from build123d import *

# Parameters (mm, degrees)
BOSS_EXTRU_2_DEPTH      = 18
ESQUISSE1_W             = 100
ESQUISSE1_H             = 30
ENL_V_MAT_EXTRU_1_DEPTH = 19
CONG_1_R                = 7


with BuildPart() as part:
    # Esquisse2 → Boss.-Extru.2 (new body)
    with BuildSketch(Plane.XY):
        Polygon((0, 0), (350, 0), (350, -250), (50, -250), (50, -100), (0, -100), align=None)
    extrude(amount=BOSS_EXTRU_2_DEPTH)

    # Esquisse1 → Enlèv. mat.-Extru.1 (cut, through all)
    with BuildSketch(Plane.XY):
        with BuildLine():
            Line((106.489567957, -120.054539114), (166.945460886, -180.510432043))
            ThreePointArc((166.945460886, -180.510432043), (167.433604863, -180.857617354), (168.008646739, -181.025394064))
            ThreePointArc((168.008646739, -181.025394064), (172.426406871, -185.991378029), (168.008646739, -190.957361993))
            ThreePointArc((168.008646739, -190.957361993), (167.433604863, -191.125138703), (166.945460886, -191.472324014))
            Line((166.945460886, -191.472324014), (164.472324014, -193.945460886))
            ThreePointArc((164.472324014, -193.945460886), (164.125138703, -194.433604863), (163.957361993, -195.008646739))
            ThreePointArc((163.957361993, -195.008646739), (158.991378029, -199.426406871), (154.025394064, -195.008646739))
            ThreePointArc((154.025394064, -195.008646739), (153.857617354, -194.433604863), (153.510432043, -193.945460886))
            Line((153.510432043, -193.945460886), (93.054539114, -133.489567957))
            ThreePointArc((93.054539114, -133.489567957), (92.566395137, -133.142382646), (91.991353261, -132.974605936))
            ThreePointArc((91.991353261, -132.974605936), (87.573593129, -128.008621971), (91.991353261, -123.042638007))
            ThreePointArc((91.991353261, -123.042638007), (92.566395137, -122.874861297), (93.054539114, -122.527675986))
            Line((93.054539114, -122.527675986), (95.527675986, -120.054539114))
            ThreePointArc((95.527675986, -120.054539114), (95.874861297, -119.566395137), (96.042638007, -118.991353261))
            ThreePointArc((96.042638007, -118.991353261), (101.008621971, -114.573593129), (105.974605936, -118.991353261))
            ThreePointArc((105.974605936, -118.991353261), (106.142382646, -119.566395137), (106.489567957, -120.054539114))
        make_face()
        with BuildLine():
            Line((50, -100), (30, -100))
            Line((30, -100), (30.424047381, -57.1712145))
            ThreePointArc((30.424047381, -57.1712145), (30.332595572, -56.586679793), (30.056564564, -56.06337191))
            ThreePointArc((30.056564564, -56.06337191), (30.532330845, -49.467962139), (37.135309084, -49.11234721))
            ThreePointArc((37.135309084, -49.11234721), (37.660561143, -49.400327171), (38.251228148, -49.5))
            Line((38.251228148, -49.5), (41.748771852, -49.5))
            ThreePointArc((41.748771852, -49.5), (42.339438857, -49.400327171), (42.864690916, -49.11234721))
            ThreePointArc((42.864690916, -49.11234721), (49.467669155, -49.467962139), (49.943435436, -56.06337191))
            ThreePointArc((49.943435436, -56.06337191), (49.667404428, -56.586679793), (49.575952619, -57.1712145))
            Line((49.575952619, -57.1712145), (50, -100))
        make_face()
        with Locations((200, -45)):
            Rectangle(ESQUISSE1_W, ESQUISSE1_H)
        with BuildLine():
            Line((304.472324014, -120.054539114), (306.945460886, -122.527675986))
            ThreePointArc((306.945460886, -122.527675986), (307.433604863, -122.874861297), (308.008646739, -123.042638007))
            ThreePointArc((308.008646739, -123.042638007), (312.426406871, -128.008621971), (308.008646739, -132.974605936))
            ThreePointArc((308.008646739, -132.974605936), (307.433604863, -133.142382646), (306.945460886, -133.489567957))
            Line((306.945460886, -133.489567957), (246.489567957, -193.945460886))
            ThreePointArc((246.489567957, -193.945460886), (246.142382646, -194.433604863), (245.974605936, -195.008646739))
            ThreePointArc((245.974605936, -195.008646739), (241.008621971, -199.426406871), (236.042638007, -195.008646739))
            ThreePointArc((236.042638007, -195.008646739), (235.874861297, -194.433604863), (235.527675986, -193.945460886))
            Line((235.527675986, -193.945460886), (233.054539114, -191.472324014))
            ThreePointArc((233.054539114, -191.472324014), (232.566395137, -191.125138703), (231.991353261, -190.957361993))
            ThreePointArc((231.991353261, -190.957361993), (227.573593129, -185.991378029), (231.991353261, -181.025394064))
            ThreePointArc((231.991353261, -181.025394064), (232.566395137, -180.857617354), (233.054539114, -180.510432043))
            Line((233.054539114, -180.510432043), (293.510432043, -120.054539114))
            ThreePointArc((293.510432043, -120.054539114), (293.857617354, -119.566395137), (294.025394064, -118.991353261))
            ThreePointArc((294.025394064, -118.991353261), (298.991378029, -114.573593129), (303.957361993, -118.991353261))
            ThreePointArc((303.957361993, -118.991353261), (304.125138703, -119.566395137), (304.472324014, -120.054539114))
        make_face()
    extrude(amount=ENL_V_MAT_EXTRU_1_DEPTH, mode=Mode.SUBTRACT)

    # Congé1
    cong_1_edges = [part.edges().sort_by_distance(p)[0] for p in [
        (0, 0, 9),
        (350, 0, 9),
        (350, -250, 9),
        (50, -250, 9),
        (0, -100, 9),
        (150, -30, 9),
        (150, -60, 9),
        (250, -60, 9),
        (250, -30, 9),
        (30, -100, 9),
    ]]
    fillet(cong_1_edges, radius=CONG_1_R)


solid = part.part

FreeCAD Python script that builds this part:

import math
import FreeCAD as App
import Part
import Sketcher

V = App.Vector
Q = App.Units.Quantity


def edges_at(feature, points):
    """Names of the edges that pass closest to the given points."""
    edges = feature.Shape.Edges
    near = lambda p: min(range(len(edges)), key=lambda i: edges[i].distToShape(Part.Vertex(*p))[0])
    return sorted({f"Edge{near(p) + 1}" for p in points})

doc = App.newDocument("Part")
body = doc.addObject("PartDesign::Body", "Body")

sketch1 = body.newObject("Sketcher::SketchObject", "Sketch")
sketch1.AttachmentSupport = (doc.getObject("XY_Plane"), [""])
sketch1.MapMode = "FlatFace"
sketch1.addGeometry([
    Part.LineSegment(V(350, 0, 0), V(0, 0, 0)),
    Part.LineSegment(V(0, 0, 0), V(0, -100, 0)),
    Part.LineSegment(V(0, -100, 0), V(50, -100, 0)),
    Part.LineSegment(V(50, -100, 0), V(50, -250, 0)),
    Part.LineSegment(V(50, -250, 0), V(350, -250, 0)),
    Part.LineSegment(V(350, -250, 0), V(350, 0, 0)),
], False)
sketch1.addConstraint([
    Sketcher.Constraint("Coincident", 0, 2, 1, 1),
    Sketcher.Constraint("Coincident", 1, 2, 2, 1),
    Sketcher.Constraint("Coincident", 2, 2, 3, 1),
    Sketcher.Constraint("Coincident", 3, 2, 4, 1),
    Sketcher.Constraint("Coincident", 4, 2, 5, 1),
    Sketcher.Constraint("Coincident", 5, 2, 0, 1),
    Sketcher.Constraint("Horizontal", 0),
    Sketcher.Constraint("Vertical", 1),
    Sketcher.Constraint("Horizontal", 2),
    Sketcher.Constraint("Vertical", 3),
    Sketcher.Constraint("Horizontal", 4),
    Sketcher.Constraint("Vertical", 5),
    Sketcher.Constraint("Coincident", 0, 2, -1, 1),
    Sketcher.Constraint("DistanceX", 0, 2, 0, 1, Q("350 mm")),
    Sketcher.Constraint("DistanceX", 2, 1, 2, 2, Q("50 mm")),
    Sketcher.Constraint("DistanceY", 1, 2, 1, 1, Q("100 mm")),
    Sketcher.Constraint("DistanceY", 3, 2, 3, 1, Q("150 mm")),
])
pad1 = body.newObject("PartDesign::Pad", "Pad")
pad1.Profile = sketch1
pad1.Length = 18

sketch2 = body.newObject("Sketcher::SketchObject", "Sketch001")
sketch2.AttachmentSupport = (doc.getObject("XY_Plane"), [""])
sketch2.MapMode = "FlatFace"
sketch2.addGeometry([
    Part.LineSegment(V(166.9, -180.5, 0), V(106.5, -120.1, 0)),
    Part.ArcOfCircle(Part.Circle(V(107.8, -118.8, 0), V(0, 0, 1), 1.8), math.radians(-173), math.radians(-135)),
    Part.ArcOfCircle(Part.Circle(V(101, -119.6, 0), V(0, 0, 1), 5), math.radians(7), math.radians(173)),
    Part.ArcOfCircle(Part.Circle(V(94.3, -118.8, 0), V(0, 0, 1), 1.8), math.radians(-45), math.radians(-7)),
    Part.LineSegment(V(95.5, -120.1, 0), V(93.1, -122.5, 0)),
    Part.ArcOfCircle(Part.Circle(V(91.8, -121.3, 0), V(0, 0, 1), 1.8), math.radians(-83), math.radians(-45)),
    Part.ArcOfCircle(Part.Circle(V(92.6, -128, 0), V(0, 0, 1), 5), math.radians(97), math.radians(263)),
    Part.ArcOfCircle(Part.Circle(V(91.8, -134.8, 0), V(0, 0, 1), 1.8), math.radians(45), math.radians(83)),
    Part.LineSegment(V(93.1, -133.5, 0), V(153.5, -193.9, 0)),
    Part.ArcOfCircle(Part.Circle(V(152.2, -195.2, 0), V(0, 0, 1), 1.8), math.radians(7), math.radians(45)),
    Part.ArcOfCircle(Part.Circle(V(159, -194.4, 0), V(0, 0, 1), 5), math.radians(-173), math.radians(-7)),
    Part.ArcOfCircle(Part.Circle(V(165.7, -195.2, 0), V(0, 0, 1), 1.8), math.radians(135), math.radians(173)),
    Part.LineSegment(V(164.5, -193.9, 0), V(166.9, -191.5, 0)),
    Part.ArcOfCircle(Part.Circle(V(168.2, -192.7, 0), V(0, 0, 1), 1.8), math.radians(97), math.radians(135)),
    Part.ArcOfCircle(Part.Circle(V(167.4, -186, 0), V(0, 0, 1), 5), math.radians(-83), math.radians(83)),
    Part.ArcOfCircle(Part.Circle(V(168.2, -179.2, 0), V(0, 0, 1), 1.8), math.radians(-135), math.radians(-97)),
    Part.LineSegment(V(30, -100, 0), V(50, -100, 0)),
    Part.LineSegment(V(50, -100, 0), V(49.6, -57.2, 0)),
    Part.ArcOfCircle(Part.Circle(V(51.4, -57.2, 0), V(0, 0, 1), 1.8), math.radians(143), math.radians(181)),
    Part.ArcOfCircle(Part.Circle(V(46, -53, 0), V(0, 0, 1), 5), math.radians(-37), math.radians(128)),
    Part.ArcOfCircle(Part.Circle(V(41.7, -47.7, 0), V(0, 0, 1), 1.8), math.radians(-90), math.radians(-52)),
    Part.LineSegment(V(41.7, -49.5, 0), V(38.3, -49.5, 0)),
    Part.ArcOfCircle(Part.Circle(V(38.3, -47.7, 0), V(0, 0, 1), 1.8), math.radians(-128), math.radians(-90)),
    Part.ArcOfCircle(Part.Circle(V(34, -53, 0), V(0, 0, 1), 5), math.radians(52), math.radians(217)),
    Part.ArcOfCircle(Part.Circle(V(28.6, -57.2, 0), V(0, 0, 1), 1.8), math.radians(-1), math.radians(37)),
    Part.LineSegment(V(30.4, -57.2, 0), V(30, -100, 0)),
    Part.LineSegment(V(150, -30, 0), V(150, -60, 0)),
    Part.LineSegment(V(150, -60, 0), V(250, -60, 0)),
    Part.LineSegment(V(250, -60, 0), V(250, -30, 0)),
    Part.LineSegment(V(250, -30, 0), V(150, -30, 0)),
    Part.LineSegment(V(306.9, -122.5, 0), V(304.5, -120.1, 0)),
    Part.ArcOfCircle(Part.Circle(V(305.7, -118.8, 0), V(0, 0, 1), 1.8), math.radians(-173), math.radians(-135)),
    Part.ArcOfCircle(Part.Circle(V(299, -119.6, 0), V(0, 0, 1), 5), math.radians(7), math.radians(173)),
    Part.ArcOfCircle(Part.Circle(V(292.2, -118.8, 0), V(0, 0, 1), 1.8), math.radians(-45), math.radians(-7)),
    Part.LineSegment(V(293.5, -120.1, 0), V(233.1, -180.5, 0)),
    Part.ArcOfCircle(Part.Circle(V(231.8, -179.2, 0), V(0, 0, 1), 1.8), math.radians(-83), math.radians(-45)),
    Part.ArcOfCircle(Part.Circle(V(232.6, -186, 0), V(0, 0, 1), 5), math.radians(97), math.radians(263)),
    Part.ArcOfCircle(Part.Circle(V(231.8, -192.7, 0), V(0, 0, 1), 1.8), math.radians(45), math.radians(83)),
    Part.LineSegment(V(233.1, -191.5, 0), V(235.5, -193.9, 0)),
    Part.ArcOfCircle(Part.Circle(V(234.3, -195.2, 0), V(0, 0, 1), 1.8), math.radians(7), math.radians(45)),
    Part.ArcOfCircle(Part.Circle(V(241, -194.4, 0), V(0, 0, 1), 5), math.radians(-173), math.radians(-7)),
    Part.ArcOfCircle(Part.Circle(V(247.8, -195.2, 0), V(0, 0, 1), 1.8), math.radians(135), math.radians(173)),
    Part.LineSegment(V(246.5, -193.9, 0), V(306.9, -133.5, 0)),
    Part.ArcOfCircle(Part.Circle(V(308.2, -134.8, 0), V(0, 0, 1), 1.8), math.radians(97), math.radians(135)),
    Part.ArcOfCircle(Part.Circle(V(307.4, -128, 0), V(0, 0, 1), 5), math.radians(-83), math.radians(83)),
    Part.ArcOfCircle(Part.Circle(V(308.2, -121.3, 0), V(0, 0, 1), 1.8), math.radians(-135), math.radians(-97)),
], False)
sketch2.addConstraint([
    Sketcher.Constraint("Tangent", 0, 2, 1, 2),
    Sketcher.Constraint("Tangent", 1, 1, 2, 1),
    Sketcher.Constraint("Tangent", 2, 2, 3, 2),
    Sketcher.Constraint("Tangent", 3, 1, 4, 1),
    Sketcher.Constraint("Tangent", 4, 2, 5, 2),
    Sketcher.Constraint("Tangent", 5, 1, 6, 1),
    Sketcher.Constraint("Tangent", 6, 2, 7, 2),
    Sketcher.Constraint("Tangent", 7, 1, 8, 1),
    Sketcher.Constraint("Tangent", 8, 2, 9, 2),
    Sketcher.Constraint("Tangent", 9, 1, 10, 1),
    Sketcher.Constraint("Tangent", 10, 2, 11, 2),
    Sketcher.Constraint("Tangent", 11, 1, 12, 1),
    Sketcher.Constraint("Tangent", 12, 2, 13, 2),
    Sketcher.Constraint("Tangent", 13, 1, 14, 1),
    Sketcher.Constraint("Tangent", 14, 2, 15, 2),
    Sketcher.Constraint("Tangent", 15, 1, 0, 1),
    Sketcher.Constraint("Coincident", 16, 2, 17, 1),
    Sketcher.Constraint("Tangent", 17, 2, 18, 2),
    Sketcher.Constraint("Tangent", 18, 1, 19, 1),
    Sketcher.Constraint("Tangent", 19, 2, 20, 2),
    Sketcher.Constraint("Tangent", 20, 1, 21, 1),
    Sketcher.Constraint("Tangent", 21, 2, 22, 2),
    Sketcher.Constraint("Tangent", 22, 1, 23, 1),
    Sketcher.Constraint("Tangent", 23, 2, 24, 2),
    Sketcher.Constraint("Tangent", 24, 1, 25, 1),
    Sketcher.Constraint("Coincident", 25, 2, 16, 1),
    Sketcher.Constraint("Coincident", 26, 2, 27, 1),
    Sketcher.Constraint("Coincident", 27, 2, 28, 1),
    Sketcher.Constraint("Coincident", 28, 2, 29, 1),
    Sketcher.Constraint("Coincident", 29, 2, 26, 1),
    Sketcher.Constraint("Tangent", 30, 2, 31, 2),
    Sketcher.Constraint("Tangent", 31, 1, 32, 1),
    Sketcher.Constraint("Tangent", 32, 2, 33, 2),
    Sketcher.Constraint("Tangent", 33, 1, 34, 1),
    Sketcher.Constraint("Tangent", 34, 2, 35, 2),
    Sketcher.Constraint("Tangent", 35, 1, 36, 1),
    Sketcher.Constraint("Tangent", 36, 2, 37, 2),
    Sketcher.Constraint("Tangent", 37, 1, 38, 1),
    Sketcher.Constraint("Tangent", 38, 2, 39, 2),
    Sketcher.Constraint("Tangent", 39, 1, 40, 1),
    Sketcher.Constraint("Tangent", 40, 2, 41, 2),
    Sketcher.Constraint("Tangent", 41, 1, 42, 1),
    Sketcher.Constraint("Tangent", 42, 2, 43, 2),
    Sketcher.Constraint("Tangent", 43, 1, 44, 1),
    Sketcher.Constraint("Tangent", 44, 2, 45, 2),
    Sketcher.Constraint("Tangent", 45, 1, 30, 1),
    Sketcher.Constraint("Horizontal", 16),
    Sketcher.Constraint("Horizontal", 21),
    Sketcher.Constraint("Vertical", 26),
    Sketcher.Constraint("Horizontal", 27),
    Sketcher.Constraint("Vertical", 28),
    Sketcher.Constraint("Horizontal", 29),
    Sketcher.Constraint("Equal", 1, 3),
    Sketcher.Constraint("Equal", 3, 5),
    Sketcher.Constraint("Equal", 2, 6),
    Sketcher.Constraint("Equal", 5, 7),
    Sketcher.Constraint("Equal", 7, 9),
    Sketcher.Constraint("Equal", 6, 10),
    Sketcher.Constraint("Equal", 9, 11),
    Sketcher.Constraint("Equal", 11, 13),
    Sketcher.Constraint("Equal", 10, 14),
    Sketcher.Constraint("Equal", 13, 15),
    Sketcher.Constraint("Equal", 15, 18),
    Sketcher.Constraint("Equal", 14, 19),
    Sketcher.Constraint("Equal", 18, 20),
    Sketcher.Constraint("Equal", 20, 22),
    Sketcher.Constraint("Equal", 19, 23),
    Sketcher.Constraint("Equal", 22, 24),
    Sketcher.Constraint("Equal", 24, 31),
    Sketcher.Constraint("Equal", 23, 32),
    Sketcher.Constraint("Equal", 31, 33),
    Sketcher.Constraint("Equal", 33, 35),
    Sketcher.Constraint("Equal", 32, 36),
    Sketcher.Constraint("Equal", 35, 37),
    Sketcher.Constraint("Equal", 37, 39),
    Sketcher.Constraint("Equal", 36, 40),
    Sketcher.Constraint("Equal", 39, 41),
    Sketcher.Constraint("Equal", 41, 43),
    Sketcher.Constraint("Equal", 40, 44),
    Sketcher.Constraint("Equal", 43, 45),
    Sketcher.Constraint("Perpendicular", 0, 4),
    Sketcher.Constraint("Perpendicular", 4, 8),
    Sketcher.Constraint("Perpendicular", 8, 12),
    Sketcher.Constraint("Perpendicular", 12, 30),
    Sketcher.Constraint("Perpendicular", 30, 34),
    Sketcher.Constraint("Perpendicular", 34, 38),
    Sketcher.Constraint("Perpendicular", 38, 42),
    Sketcher.Constraint("Horizontal", 1, 3, 3, 3),
    Sketcher.Constraint("Horizontal", 9, 3, 11, 3),
    Sketcher.Constraint("Horizontal", 19, 3, 23, 3),
    Sketcher.Constraint("Horizontal", 18, 3, 24, 3),
    Sketcher.Constraint("Horizontal", 3, 3, 31, 3),
    Sketcher.Constraint("Horizontal", 2, 3, 32, 3),
    Sketcher.Constraint("Horizontal", 31, 3, 33, 3),
    Sketcher.Constraint("Horizontal", 15, 3, 35, 3),
    Sketcher.Constraint("Horizontal", 14, 3, 36, 3),
    Sketcher.Constraint("Horizontal", 13, 3, 37, 3),
    Sketcher.Constraint("Horizontal", 11, 3, 39, 3),
    Sketcher.Constraint("Horizontal", 10, 3, 40, 3),
    Sketcher.Constraint("Horizontal", 39, 3, 41, 3),
    Sketcher.Constraint("Horizontal", 7, 3, 43, 3),
    Sketcher.Constraint("Horizontal", 6, 3, 44, 3),
    Sketcher.Constraint("Horizontal", 0, 2, 3, 1),
    Sketcher.Constraint("Horizontal", 17, 2, 24, 1),
    Sketcher.Constraint("Vertical", 5, 3, 7, 3),
    Sketcher.Constraint("Vertical", 13, 3, 15, 3),
    Sketcher.Constraint("Equal", 0, 8),
    Sketcher.Constraint("Equal", 4, 12),
    Sketcher.Constraint("Radius", 2, Q("5 mm")),
    Sketcher.Constraint("Radius", 1, Q("1.8 mm")),
    Sketcher.Constraint("DistanceX", 16, 1, 16, 2, Q("20 mm")),
    Sketcher.Constraint("DistanceX", 27, 1, 27, 2, Q("100 mm")),
    Sketcher.Constraint("DistanceY", 26, 2, 26, 1, Q("30 mm")),
    Sketcher.Constraint("DistanceX", -1, 1, 16, 2, Q("50 mm")),
    Sketcher.Constraint("DistanceY", 16, 2, -1, 1, Q("100 mm")),
    Sketcher.Constraint("DistanceX", -1, 1, 26, 2, Q("150 mm")),
    Sketcher.Constraint("DistanceY", 26, 2, -1, 1, Q("60 mm")),
    Sketcher.Constraint("DistanceY", 20, 3, -1, 1, Q("47.7 mm")),
    Sketcher.Constraint("DistanceX", 21, 2, 21, 1, Q("3.497544 mm")),
    Sketcher.Constraint("DistanceX", -1, 1, 1, 3, Q("107.76236 mm")),
    Sketcher.Constraint("DistanceX", -1, 1, 2, 3, Q("101.008622 mm")),
    Sketcher.Constraint("DistanceY", 6, 3, -1, 1, Q("128.008622 mm")),
    Sketcher.Constraint("DistanceY", 7, 3, -1, 1, Q("134.76236 mm")),
    Sketcher.Constraint("DistanceX", -1, 1, 9, 3, Q("152.23764 mm")),
    Sketcher.Constraint("DistanceX", -1, 1, 32, 3, Q("298.991378 mm")),
    Sketcher.Constraint("DistanceY", 0, 2, -1, 1, Q("120.054539 mm")),
    Sketcher.Constraint("DistanceY", 18, 1, -1, 1, Q("56.063372 mm")),
    Sketcher.Constraint("DistanceX", -1, 1, 19, 2, Q("42.864691 mm")),
])
pocket1 = body.newObject("PartDesign::Pocket", "Pocket")
pocket1.Profile = sketch2
pocket1.Type = "ThroughAll"
pocket1.Reversed = True
doc.recompute()

fillet = body.newObject("PartDesign::Fillet", "Fillet")
fillet.Base = (pocket1, edges_at(pocket1, [
    (0, 0, 9),
    (350, 0, 9),
    (350, -250, 9),
    (50, -250, 9),
    (0, -100, 9),
    (150, -30, 9),
    (150, -60, 9),
    (250, -60, 9),
    (250, -30, 9),
    (30, -100, 9),
]))
fillet.Radius = 7

doc.recompute()
